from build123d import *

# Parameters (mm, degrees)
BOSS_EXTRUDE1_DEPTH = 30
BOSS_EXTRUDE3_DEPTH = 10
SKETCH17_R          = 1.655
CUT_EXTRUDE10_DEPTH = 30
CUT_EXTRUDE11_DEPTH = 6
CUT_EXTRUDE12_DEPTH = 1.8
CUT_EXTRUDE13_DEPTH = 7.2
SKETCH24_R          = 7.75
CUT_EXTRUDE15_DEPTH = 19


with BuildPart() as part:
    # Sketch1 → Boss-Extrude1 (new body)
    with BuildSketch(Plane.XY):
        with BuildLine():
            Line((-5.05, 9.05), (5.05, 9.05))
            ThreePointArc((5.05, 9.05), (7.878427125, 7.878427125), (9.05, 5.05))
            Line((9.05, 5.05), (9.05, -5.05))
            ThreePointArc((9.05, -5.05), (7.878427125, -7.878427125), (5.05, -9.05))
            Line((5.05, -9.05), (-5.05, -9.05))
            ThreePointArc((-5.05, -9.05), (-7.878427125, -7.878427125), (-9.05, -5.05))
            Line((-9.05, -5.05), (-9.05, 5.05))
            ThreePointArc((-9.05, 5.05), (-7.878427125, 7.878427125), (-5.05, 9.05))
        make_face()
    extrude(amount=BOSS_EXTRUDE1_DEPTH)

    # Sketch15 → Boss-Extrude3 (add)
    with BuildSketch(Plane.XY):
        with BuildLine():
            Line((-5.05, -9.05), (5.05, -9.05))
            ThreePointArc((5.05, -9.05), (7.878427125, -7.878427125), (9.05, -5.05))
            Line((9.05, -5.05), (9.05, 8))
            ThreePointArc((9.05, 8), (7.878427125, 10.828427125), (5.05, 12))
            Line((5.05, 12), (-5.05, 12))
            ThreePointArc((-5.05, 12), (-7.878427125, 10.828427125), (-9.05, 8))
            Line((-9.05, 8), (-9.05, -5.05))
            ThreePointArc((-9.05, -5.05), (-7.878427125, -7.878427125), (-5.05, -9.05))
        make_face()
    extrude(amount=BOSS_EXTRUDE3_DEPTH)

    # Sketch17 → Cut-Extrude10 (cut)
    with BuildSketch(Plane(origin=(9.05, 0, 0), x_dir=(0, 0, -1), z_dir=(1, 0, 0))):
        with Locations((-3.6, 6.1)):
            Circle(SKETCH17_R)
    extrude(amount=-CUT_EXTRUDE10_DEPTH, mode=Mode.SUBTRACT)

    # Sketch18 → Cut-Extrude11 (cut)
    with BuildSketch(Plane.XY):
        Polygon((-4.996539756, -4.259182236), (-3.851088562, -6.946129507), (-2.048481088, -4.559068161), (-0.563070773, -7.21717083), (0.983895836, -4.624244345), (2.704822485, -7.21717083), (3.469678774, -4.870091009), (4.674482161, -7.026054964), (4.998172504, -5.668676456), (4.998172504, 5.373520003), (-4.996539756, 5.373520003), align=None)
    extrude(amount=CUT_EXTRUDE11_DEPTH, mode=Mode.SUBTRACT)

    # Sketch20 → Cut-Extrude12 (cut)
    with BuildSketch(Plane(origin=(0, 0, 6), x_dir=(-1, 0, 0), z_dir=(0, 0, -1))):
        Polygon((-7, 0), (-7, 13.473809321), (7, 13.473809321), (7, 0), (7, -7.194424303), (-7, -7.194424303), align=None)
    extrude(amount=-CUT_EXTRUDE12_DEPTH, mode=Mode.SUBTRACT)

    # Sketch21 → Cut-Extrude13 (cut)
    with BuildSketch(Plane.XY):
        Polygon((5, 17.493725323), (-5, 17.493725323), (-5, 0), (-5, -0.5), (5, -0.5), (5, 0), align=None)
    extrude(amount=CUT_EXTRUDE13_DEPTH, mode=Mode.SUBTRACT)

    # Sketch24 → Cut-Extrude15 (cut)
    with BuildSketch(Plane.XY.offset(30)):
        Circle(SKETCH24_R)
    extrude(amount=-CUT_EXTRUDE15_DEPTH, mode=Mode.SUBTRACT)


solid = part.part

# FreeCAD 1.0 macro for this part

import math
import FreeCAD as App
import Part
import Sketcher

doc = App.newDocument("Part")
body = doc.addObject("PartDesign::Body", "Body")

# Sketch on XY plane
sketch1 = doc.addObject("Sketcher::SketchObject", "Sketch")
body.addObject(sketch1)
sketch1.AttachmentSupport = (doc.XY_Plane, [""])
sketch1.MapMode = "FlatFace"
sketch1.addGeometry(Part.LineSegment(App.Vector(5.05, 9.05, 0), App.Vector(-5.05, 9.05, 0)), False)
sketch1.addGeometry(Part.ArcOfCircle(Part.Circle(App.Vector(-5.05, 5.05, 0), App.Vector(0, 0, 1), 4), math.radians(90), math.radians(180)), False)
sketch1.addGeometry(Part.LineSegment(App.Vector(-9.05, 5.05, 0), App.Vector(-9.05, -5.05, 0)), False)
sketch1.addGeometry(Part.ArcOfCircle(Part.Circle(App.Vector(-5.05, -5.05, 0), App.Vector(0, 0, 1), 4), math.radians(180), math.radians(270)), False)
sketch1.addGeometry(Part.LineSegment(App.Vector(-5.05, -9.05, 0), App.Vector(5.05, -9.05, 0)), False)
sketch1.addGeometry(Part.ArcOfCircle(Part.Circle(App.Vector(5.05, -5.05, 0), App.Vector(0, 0, 1), 4), math.radians(-90), math.radians(0)), False)
sketch1.addGeometry(Part.LineSegment(App.Vector(9.05, -5.05, 0), App.Vector(9.05, 5.05, 0)), False)
sketch1.addGeometry(Part.ArcOfCircle(Part.Circle(App.Vector(5.05, 5.05, 0), App.Vector(0, 0, 1), 4), math.radians(0), math.radians(90)), False)
sketch1.addConstraint(Sketcher.Constraint("Tangent", 0, 2, 1, 1))
sketch1.addConstraint(Sketcher.Constraint("Tangent", 1, 2, 2, 1))
sketch1.addConstraint(Sketcher.Constraint("Tangent", 2, 2, 3, 1))
sketch1.addConstraint(Sketcher.Constraint("Tangent", 3, 2, 4, 1))
sketch1.addConstraint(Sketcher.Constraint("Tangent", 4, 2, 5, 1))
sketch1.addConstraint(Sketcher.Constraint("Tangent", 5, 2, 6, 1))
sketch1.addConstraint(Sketcher.Constraint("Tangent", 6, 2, 7, 1))
sketch1.addConstraint(Sketcher.Constraint("Tangent", 7, 2, 0, 1))
sketch1.addConstraint(Sketcher.Constraint("Horizontal", 0))
sketch1.addConstraint(Sketcher.Constraint("Vertical", 2))
sketch1.addConstraint(Sketcher.Constraint("Horizontal", 4))
sketch1.addConstraint(Sketcher.Constraint("Vertical", 6))
sketch1.addConstraint(Sketcher.Constraint("Equal", 1, 3))
sketch1.addConstraint(Sketcher.Constraint("Equal", 3, 5))
sketch1.addConstraint(Sketcher.Constraint("Equal", 5, 7))
sketch1.addConstraint(Sketcher.Constraint("Symmetric", 1, 3, 5, 3, -1, 1))
sketch1.addConstraint(Sketcher.Constraint("Equal", 4, 2))
sketch1.addConstraint(Sketcher.Constraint("Radius", 1, 4.0))
sketch1.addConstraint(Sketcher.Constraint("DistanceX", 0, 2, 0, 1, 10.1))
pad1 = doc.addObject("PartDesign::Pad", "Pad")
body.addObject(pad1)
pad1.Profile = sketch1
pad1.Length = 30

# Sketch on XY plane
sketch2 = doc.addObject("Sketcher::SketchObject", "Sketch001")
body.addObject(sketch2)
sketch2.AttachmentSupport = (doc.XY_Plane, [""])
sketch2.MapMode = "FlatFace"
sketch2.addGeometry(Part.LineSegment(App.Vector(-5.05, -9.05, 0), App.Vector(5.05, -9.05, 0)), False)
sketch2.addGeometry(Part.ArcOfCircle(Part.Circle(App.Vector(5.05, -5.05, 0), App.Vector(0, 0, 1), 4), math.radians(-90), math.radians(0)), False)
sketch2.addGeometry(Part.LineSegment(App.Vector(9.05, -5.05, 0), App.Vector(9.05, 8, 0)), False)
sketch2.addGeometry(Part.ArcOfCircle(Part.Circle(App.Vector(5.05, 8, 0), App.Vector(0, 0, 1), 4), math.radians(0), math.radians(90)), False)
sketch2.addGeometry(Part.LineSegment(App.Vector(5.05, 12, 0), App.Vector(-5.05, 12, 0)), False)
sketch2.addGeometry(Part.ArcOfCircle(Part.Circle(App.Vector(-5.05, 8, 0), App.Vector(0, 0, 1), 4), math.radians(90), math.radians(180)), False)
sketch2.addGeometry(Part.LineSegment(App.Vector(-9.05, 8, 0), App.Vector(-9.05, -5.05, 0)), False)
sketch2.addGeometry(Part.ArcOfCircle(Part.Circle(App.Vector(-5.05, -5.05, 0), App.Vector(0, 0, 1), 4), math.radians(180), math.radians(270)), False)
sketch2.addConstraint(Sketcher.Constraint("Tangent", 0, 2, 1, 1))
sketch2.addConstraint(Sketcher.Constraint("Tangent", 1, 2, 2, 1))
sketch2.addConstraint(Sketcher.Constraint("Tangent", 2, 2, 3, 1))
sketch2.addConstraint(Sketcher.Constraint("Tangent", 3, 2, 4, 1))
sketch2.addConstraint(Sketcher.Constraint("Tangent", 4, 2, 5, 1))
sketch2.addConstraint(Sketcher.Constraint("Tangent", 5, 2, 6, 1))
sketch2.addConstraint(Sketcher.Constraint("Tangent", 6, 2, 7, 1))
sketch2.addConstraint(Sketcher.Constraint("Tangent", 7, 2, 0, 1))
sketch2.addConstraint(Sketcher.Constraint("Horizontal", 0))
sketch2.addConstraint(Sketcher.Constraint("Vertical", 2))
sketch2.addConstraint(Sketcher.Constraint("Horizontal", 4))
sketch2.addConstraint(Sketcher.Constraint("Vertical", 6))
sketch2.addConstraint(Sketcher.Constraint("Equal", 1, 3))
sketch2.addConstraint(Sketcher.Constraint("Equal", 3, 5))
sketch2.addConstraint(Sketcher.Constraint("Equal", 5, 7))
sketch2.addConstraint(Sketcher.Constraint("Radius", 1, 4.0))
sketch2.addConstraint(Sketcher.Constraint("DistanceX", 0, 1, 0, 2, 10.1))
sketch2.addConstraint(Sketcher.Constraint("DistanceY", -1, 1, 3, 3, 8.0))
sketch2.addConstraint(Sketcher.Constraint("DistanceY", 2, 1, 2, 2, 13.05))
sketch2.addConstraint(Sketcher.Constraint("DistanceX", -1, 1, 1, 3, 5.05))
pad2 = doc.addObject("PartDesign::Pad", "Pad001")
body.addObject(pad2)
pad2.Profile = sketch2
pad2.Length = 10

# Sketch on YZ plane
sketch3 = doc.addObject("Sketcher::SketchObject", "Sketch002")
body.addObject(sketch3)
sketch3.AttachmentSupport = (doc.YZ_Plane, [""])
sketch3.MapMode = "FlatFace"
sketch3.AttachmentOffset = App.Placement(App.Vector(0, 0, 9.05), App.Rotation())
sketch3.addGeometry(Part.Circle(App.Vector(6.1, 3.6, 0), App.Vector(0, 0, 1), 1.655), False)
sketch3.addConstraint(Sketcher.Constraint("Diameter", 0, 3.31))
sketch3.addConstraint(Sketcher.Constraint("DistanceX", -1, 1, 0, 3, 6.1))
sketch3.addConstraint(Sketcher.Constraint("DistanceY", -1, 1, 0, 3, 3.6))
pocket1 = doc.addObject("PartDesign::Pocket", "Pocket")
body.addObject(pocket1)
pocket1.Profile = sketch3
pocket1.Length = 30

# Sketch on XY plane
sketch4 = doc.addObject("Sketcher::SketchObject", "Sketch003")
body.addObject(sketch4)
sketch4.AttachmentSupport = (doc.XY_Plane, [""])
sketch4.MapMode = "FlatFace"
sketch4.addGeometry(Part.LineSegment(App.Vector(-4.99654, -4.259182, 0), App.Vector(-3.851089, -6.94613, 0)), False)
sketch4.addGeometry(Part.LineSegment(App.Vector(-3.851089, -6.94613, 0), App.Vector(-2.048481, -4.559068, 0)), False)
sketch4.addGeometry(Part.LineSegment(App.Vector(-2.048481, -4.559068, 0), App.Vector(-0.563071, -7.217171, 0)), False)
sketch4.addGeometry(Part.LineSegment(App.Vector(-0.563071, -7.217171, 0), App.Vector(0.983896, -4.624244, 0)), False)
sketch4.addGeometry(Part.LineSegment(App.Vector(0.983896, -4.624244, 0), App.Vector(2.704822, -7.217171, 0)), False)
sketch4.addGeometry(Part.LineSegment(App.Vector(2.704822, -7.217171, 0), App.Vector(3.469679, -4.870091, 0)), False)
sketch4.addGeometry(Part.LineSegment(App.Vector(3.469679, -4.870091, 0), App.Vector(4.674482, -7.026055, 0)), False)
sketch4.addGeometry(Part.LineSegment(App.Vector(4.674482, -7.026055, 0), App.Vector(4.998173, -5.668676, 0)), False)
sketch4.addGeometry(Part.LineSegment(App.Vector(4.998173, -5.668676, 0), App.Vector(4.998173, 5.37352, 0)), False)
sketch4.addGeometry(Part.LineSegment(App.Vector(4.998173, 5.37352, 0), App.Vector(-4.99654, 5.37352, 0)), False)
sketch4.addGeometry(Part.LineSegment(App.Vector(-4.99654, 5.37352, 0), App.Vector(-4.99654, -4.259182, 0)), False)
sketch4.addConstraint(Sketcher.Constraint("Coincident", 0, 2, 1, 1))
sketch4.addConstraint(Sketcher.Constraint("Coincident", 1, 2, 2, 1))
sketch4.addConstraint(Sketcher.Constraint("Coincident", 2, 2, 3, 1))
sketch4.addConstraint(Sketcher.Constraint("Coincident", 3, 2, 4, 1))
sketch4.addConstraint(Sketcher.Constraint("Coincident", 4, 2, 5, 1))
sketch4.addConstraint(Sketcher.Constraint("Coincident", 5, 2, 6, 1))
sketch4.addConstraint(Sketcher.Constraint("Coincident", 6, 2, 7, 1))
sketch4.addConstraint(Sketcher.Constraint("Coincident", 7, 2, 8, 1))
sketch4.addConstraint(Sketcher.Constraint("Coincident", 8, 2, 9, 1))
sketch4.addConstraint(Sketcher.Constraint("Coincident", 9, 2, 10, 1))
sketch4.addConstraint(Sketcher.Constraint("Coincident", 10, 2, 0, 1))
sketch4.addConstraint(Sketcher.Constraint("Vertical", 8))
sketch4.addConstraint(Sketcher.Constraint("Horizontal", 9))
sketch4.addConstraint(Sketcher.Constraint("Vertical", 10))
sketch4.addConstraint(Sketcher.Constraint("Parallel", 2, 6))
sketch4.addConstraint(Sketcher.Constraint("Horizontal", 2, 2, 4, 2))
sketch4.addConstraint(Sketcher.Constraint("Distance", 1, 2.99123))
sketch4.addConstraint(Sketcher.Constraint("Distance", 2, 3.044988))
sketch4.addConstraint(Sketcher.Constraint("Distance", 4, 3.11205))
sketch4.addConstraint(Sketcher.Constraint("Distance", 5, 2.46856))
sketch4.addConstraint(Sketcher.Constraint("Distance", 7, 1.39544))
sketch4.addConstraint(Sketcher.Constraint("DistanceX", 9, 2, 9, 1, 9.994712))
sketch4.addConstraint(Sketcher.Constraint("DistanceY", 8, 1, 8, 2, 11.042196))
sketch4.addConstraint(Sketcher.Constraint("DistanceY", 10, 2, 10, 1, 9.632702))
sketch4.addConstraint(Sketcher.Constraint("DistanceX", 0, 2, -1, 1, 3.851089))
sketch4.addConstraint(Sketcher.Constraint("DistanceY", 0, 2, -1, 1, 6.94613))
sketch4.addConstraint(Sketcher.Constraint("DistanceX", 1, 2, -1, 1, 2.048481))
sketch4.addConstraint(Sketcher.Constraint("DistanceX", 2, 2, -1, 1, 0.563071))
sketch4.addConstraint(Sketcher.Constraint("DistanceX", -1, 1, 5, 2, 3.469679))
sketch4.addConstraint(Sketcher.Constraint("DistanceY", 5, 2, -1, 1, 4.870091))
sketch4.addConstraint(Sketcher.Constraint("DistanceY", -1, 1, 8, 2, 5.37352))
sketch4.addConstraint(Sketcher.Constraint("DistanceX", 9, 2, -1, 1, 4.99654))
sketch4.addConstraint(Sketcher.Constraint("DistanceY", 6, 2, 3, 2, 2.401811))
pocket2 = doc.addObject("PartDesign::Pocket", "Pocket001")
body.addObject(pocket2)
pocket2.Profile = sketch4
pocket2.Length = 6
pocket2.Reversed = True

# Sketch on XY plane
sketch5 = doc.addObject("Sketcher::SketchObject", "Sketch004")
body.addObject(sketch5)
sketch5.AttachmentSupport = (doc.XY_Plane, [""])
sketch5.MapMode = "FlatFace"
sketch5.AttachmentOffset = App.Placement(App.Vector(0, 0, 6), App.Rotation())
sketch5.addGeometry(Part.LineSegment(App.Vector(7, 13.473809, 0), App.Vector(7, -7.194424, 0)), False)
sketch5.addGeometry(Part.LineSegment(App.Vector(7, -7.194424, 0), App.Vector(-7, -7.194424, 0)), False)
sketch5.addGeometry(Part.LineSegment(App.Vector(-7, -7.194424, 0), App.Vector(-7, 13.473809, 0)), False)
sketch5.addGeometry(Part.LineSegment(App.Vector(-7, 13.473809, 0), App.Vector(7, 13.473809, 0)), False)
sketch5.addConstraint(Sketcher.Constraint("Coincident", 0, 2, 1, 1))
sketch5.addConstraint(Sketcher.Constraint("Coincident", 1, 2, 2, 1))
sketch5.addConstraint(Sketcher.Constraint("Coincident", 2, 2, 3, 1))
sketch5.addConstraint(Sketcher.Constraint("Coincident", 3, 2, 0, 1))
sketch5.addConstraint(Sketcher.Constraint("Vertical", 0))
sketch5.addConstraint(Sketcher.Constraint("Horizontal", 1))
sketch5.addConstraint(Sketcher.Constraint("Vertical", 2))
sketch5.addConstraint(Sketcher.Constraint("Horizontal", 3))
sketch5.addConstraint(Sketcher.Constraint("DistanceX", 1, 2, 1, 1, 14.0))
sketch5.addConstraint(Sketcher.Constraint("DistanceX", -1, 1, 0, 2, 7.0))
sketch5.addConstraint(Sketcher.Constraint("DistanceY", 0, 2, 0, 1, 20.668234))
sketch5.addConstraint(Sketcher.Constraint("DistanceY", -1, 1, 2, 2, 13.473809))
pocket3 = doc.addObject("PartDesign::Pocket", "Pocket002")
body.addObject(pocket3)
pocket3.Profile = sketch5
pocket3.Length = 1.8
pocket3.Reversed = True

# Sketch on XY plane
sketch6 = doc.addObject("Sketcher::SketchObject", "Sketch005")
body.addObject(sketch6)
sketch6.AttachmentSupport = (doc.XY_Plane, [""])
sketch6.MapMode = "FlatFace"
sketch6.addGeometry(Part.LineSegment(App.Vector(5, 17.493725, 0), App.Vector(-5, 17.493725, 0)), False)
sketch6.addGeometry(Part.LineSegment(App.Vector(-5, 17.493725, 0), App.Vector(-5, -0.5, 0)), False)
sketch6.addGeometry(Part.LineSegment(App.Vector(-5, -0.5, 0), App.Vector(5, -0.5, 0)), False)
sketch6.addGeometry(Part.LineSegment(App.Vector(5, -0.5, 0), App.Vector(5, 17.493725, 0)), False)
sketch6.addConstraint(Sketcher.Constraint("Coincident", 0, 2, 1, 1))
sketch6.addConstraint(Sketcher.Constraint("Coincident", 1, 2, 2, 1))
sketch6.addConstraint(Sketcher.Constraint("Coincident", 2, 2, 3, 1))
sketch6.addConstraint(Sketcher.Constraint("Coincident", 3, 2, 0, 1))
sketch6.addConstraint(Sketcher.Constraint("Horizontal", 0))
sketch6.addConstraint(Sketcher.Constraint("Vertical", 1))
sketch6.addConstraint(Sketcher.Constraint("Horizontal", 2))
sketch6.addConstraint(Sketcher.Constraint("Vertical", 3))
sketch6.addConstraint(Sketcher.Constraint("DistanceX", 0, 2, 0, 1, 10.0))
sketch6.addConstraint(Sketcher.Constraint("DistanceX", 0, 2, -1, 1, 5.0))
sketch6.addConstraint(Sketcher.Constraint("DistanceY", 1, 2, -1, 1, 0.5))
sketch6.addConstraint(Sketcher.Constraint("DistanceY", 1, 2, 1, 1, 17.993725))
pocket4 = doc.addObject("PartDesign::Pocket", "Pocket003")
body.addObject(pocket4)
pocket4.Profile = sketch6
pocket4.Length = 7.2
pocket4.Reversed = True

# Sketch on XY plane
sketch7 = doc.addObject("Sketcher::SketchObject", "Sketch006")
body.addObject(sketch7)
sketch7.AttachmentSupport = (doc.XY_Plane, [""])
sketch7.MapMode = "FlatFace"
sketch7.AttachmentOffset = App.Placement(App.Vector(0, 0, 30), App.Rotation())
sketch7.addGeometry(Part.Circle(App.Vector(0, 0, 0), App.Vector(0, 0, 1), 7.75), False)
sketch7.addConstraint(Sketcher.Constraint("Coincident", 0, 3, -1, 1))
sketch7.addConstraint(Sketcher.Constraint("Diameter", 0, 15.5))
pocket5 = doc.addObject("PartDesign::Pocket", "Pocket004")
body.addObject(pocket5)
pocket5.Profile = sketch7
pocket5.Length = 19

doc.recompute()
